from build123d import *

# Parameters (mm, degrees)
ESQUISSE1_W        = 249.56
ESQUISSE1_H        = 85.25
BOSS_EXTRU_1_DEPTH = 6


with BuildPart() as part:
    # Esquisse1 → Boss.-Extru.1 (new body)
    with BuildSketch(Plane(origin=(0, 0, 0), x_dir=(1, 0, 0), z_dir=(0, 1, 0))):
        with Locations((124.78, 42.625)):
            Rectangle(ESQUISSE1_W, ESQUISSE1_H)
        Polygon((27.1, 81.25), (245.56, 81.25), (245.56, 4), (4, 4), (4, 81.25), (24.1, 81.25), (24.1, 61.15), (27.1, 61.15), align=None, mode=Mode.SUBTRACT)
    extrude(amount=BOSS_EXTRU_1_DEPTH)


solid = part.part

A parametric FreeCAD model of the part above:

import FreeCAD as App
import Part
import Sketcher
from FreeCAD import Vector

doc = App.newDocument("Part")
params = doc.addObject("Spreadsheet::Sheet", "Params")
for row, (alias, value) in enumerate([
    ("sketch1_width", "3 mm"),
    ("sketch1_width2", "20.1 mm"),
    ("sketch1_width3", "249.56 mm"),
    ("sketch1_height", "85.25 mm"),
    ("pad1_length", "6 mm"),
], start=1):
    params.set(f"A{row}", alias)
    params.set(f"B{row}", "=" + value)
    params.setAlias(f"B{row}", alias)

body = doc.addObject("PartDesign::Body", "Body")

# Sketch on XZ plane
sketch1 = body.newObject("Sketcher::SketchObject", "Sketch")
sketch1.AttachmentSupport = (doc.getObject("XZ_Plane"), [""])
sketch1.MapMode = "FlatFace"
sketch1.addGeometry([
    Part.LineSegment(Vector(0, -85.2, 0), Vector(0, 0, 0)),  # 0
    Part.LineSegment(Vector(0, 0, 0), Vector(249.6, 0, 0)),  # 1
    Part.LineSegment(Vector(249.6, 0, 0), Vector(249.6, -85.2, 0)),  # 2
    Part.LineSegment(Vector(249.6, -85.2, 0), Vector(0, -85.2, 0)),  # 3
    Part.LineSegment(Vector(27.1, -61.1, 0), Vector(27.1, -81.2, 0)),  # 4
    Part.LineSegment(Vector(27.1, -81.2, 0), Vector(245.6, -81.2, 0)),  # 5
    Part.LineSegment(Vector(245.6, -81.2, 0), Vector(245.6, -4, 0)),  # 6
    Part.LineSegment(Vector(245.6, -4, 0), Vector(4, -4, 0)),  # 7
    Part.LineSegment(Vector(4, -4, 0), Vector(4, -81.2, 0)),  # 8
    Part.LineSegment(Vector(4, -81.2, 0), Vector(24.1, -81.2, 0)),  # 9
    Part.LineSegment(Vector(24.1, -81.2, 0), Vector(24.1, -61.1, 0)),  # 10
    Part.LineSegment(Vector(24.1, -61.1, 0), Vector(27.1, -61.1, 0)),  # 11
], False)
sketch1.addConstraint([
    Sketcher.Constraint("Coincident", 0, 2, 1, 1),
    Sketcher.Constraint("Coincident", 1, 2, 2, 1),
    Sketcher.Constraint("Coincident", 2, 2, 3, 1),
    Sketcher.Constraint("Coincident", 3, 2, 0, 1),
    Sketcher.Constraint("Coincident", 4, 2, 5, 1),
    Sketcher.Constraint("Coincident", 5, 2, 6, 1),
    Sketcher.Constraint("Coincident", 6, 2, 7, 1),
    Sketcher.Constraint("Coincident", 7, 2, 8, 1),
    Sketcher.Constraint("Coincident", 8, 2, 9, 1),
    Sketcher.Constraint("Coincident", 9, 2, 10, 1),
    Sketcher.Constraint("Coincident", 10, 2, 11, 1),
    Sketcher.Constraint("Coincident", 11, 2, 4, 1),
    Sketcher.Constraint("Vertical", 0),
    Sketcher.Constraint("Horizontal", 1),
    Sketcher.Constraint("Vertical", 2),
    Sketcher.Constraint("Horizontal", 3),
    Sketcher.Constraint("Vertical", 4),
    Sketcher.Constraint("Horizontal", 5),
    Sketcher.Constraint("Vertical", 6),
    Sketcher.Constraint("Horizontal", 7),
    Sketcher.Constraint("Vertical", 8),
    Sketcher.Constraint("Horizontal", 9),
    Sketcher.Constraint("Vertical", 10),
    Sketcher.Constraint("Horizontal", 11),
    Sketcher.Constraint("Coincident", 0, 2, -1, 1),
    Sketcher.Constraint("Horizontal", 5, 2, 8, 2),
    Sketcher.Constraint("Equal", 9, 4),
    Sketcher.Constraint("DistanceX", 11, 1, 11, 2, 3.0),
    Sketcher.Constraint("DistanceX", 9, 1, 9, 2, 20.1),
    Sketcher.Constraint("DistanceY", 6, 2, -1, 1, 4.0),
    Sketcher.Constraint("DistanceX", -1, 1, 7, 2, 4.0),
    Sketcher.Constraint("DistanceY", 3, 2, 4, 2, 4.0),
    Sketcher.Constraint("DistanceX", 5, 2, 2, 2, 4.0),
    Sketcher.Constraint("DistanceX", 1, 1, 1, 2, 249.56),
    Sketcher.Constraint("DistanceY", 0, 1, 0, 2, 85.25),
])
sketch1.setExpression("Constraints[27]", "Params.sketch1_width")
sketch1.setExpression("Constraints[28]", "Params.sketch1_width2")
sketch1.setExpression("Constraints[33]", "Params.sketch1_width3")
sketch1.setExpression("Constraints[34]", "Params.sketch1_height")
pad1 = body.newObject("PartDesign::Pad", "Pad")
pad1.Profile = sketch1
pad1.setExpression("Length", "Params.pad1_length")
pad1.Reversed = True

doc.recompute()
